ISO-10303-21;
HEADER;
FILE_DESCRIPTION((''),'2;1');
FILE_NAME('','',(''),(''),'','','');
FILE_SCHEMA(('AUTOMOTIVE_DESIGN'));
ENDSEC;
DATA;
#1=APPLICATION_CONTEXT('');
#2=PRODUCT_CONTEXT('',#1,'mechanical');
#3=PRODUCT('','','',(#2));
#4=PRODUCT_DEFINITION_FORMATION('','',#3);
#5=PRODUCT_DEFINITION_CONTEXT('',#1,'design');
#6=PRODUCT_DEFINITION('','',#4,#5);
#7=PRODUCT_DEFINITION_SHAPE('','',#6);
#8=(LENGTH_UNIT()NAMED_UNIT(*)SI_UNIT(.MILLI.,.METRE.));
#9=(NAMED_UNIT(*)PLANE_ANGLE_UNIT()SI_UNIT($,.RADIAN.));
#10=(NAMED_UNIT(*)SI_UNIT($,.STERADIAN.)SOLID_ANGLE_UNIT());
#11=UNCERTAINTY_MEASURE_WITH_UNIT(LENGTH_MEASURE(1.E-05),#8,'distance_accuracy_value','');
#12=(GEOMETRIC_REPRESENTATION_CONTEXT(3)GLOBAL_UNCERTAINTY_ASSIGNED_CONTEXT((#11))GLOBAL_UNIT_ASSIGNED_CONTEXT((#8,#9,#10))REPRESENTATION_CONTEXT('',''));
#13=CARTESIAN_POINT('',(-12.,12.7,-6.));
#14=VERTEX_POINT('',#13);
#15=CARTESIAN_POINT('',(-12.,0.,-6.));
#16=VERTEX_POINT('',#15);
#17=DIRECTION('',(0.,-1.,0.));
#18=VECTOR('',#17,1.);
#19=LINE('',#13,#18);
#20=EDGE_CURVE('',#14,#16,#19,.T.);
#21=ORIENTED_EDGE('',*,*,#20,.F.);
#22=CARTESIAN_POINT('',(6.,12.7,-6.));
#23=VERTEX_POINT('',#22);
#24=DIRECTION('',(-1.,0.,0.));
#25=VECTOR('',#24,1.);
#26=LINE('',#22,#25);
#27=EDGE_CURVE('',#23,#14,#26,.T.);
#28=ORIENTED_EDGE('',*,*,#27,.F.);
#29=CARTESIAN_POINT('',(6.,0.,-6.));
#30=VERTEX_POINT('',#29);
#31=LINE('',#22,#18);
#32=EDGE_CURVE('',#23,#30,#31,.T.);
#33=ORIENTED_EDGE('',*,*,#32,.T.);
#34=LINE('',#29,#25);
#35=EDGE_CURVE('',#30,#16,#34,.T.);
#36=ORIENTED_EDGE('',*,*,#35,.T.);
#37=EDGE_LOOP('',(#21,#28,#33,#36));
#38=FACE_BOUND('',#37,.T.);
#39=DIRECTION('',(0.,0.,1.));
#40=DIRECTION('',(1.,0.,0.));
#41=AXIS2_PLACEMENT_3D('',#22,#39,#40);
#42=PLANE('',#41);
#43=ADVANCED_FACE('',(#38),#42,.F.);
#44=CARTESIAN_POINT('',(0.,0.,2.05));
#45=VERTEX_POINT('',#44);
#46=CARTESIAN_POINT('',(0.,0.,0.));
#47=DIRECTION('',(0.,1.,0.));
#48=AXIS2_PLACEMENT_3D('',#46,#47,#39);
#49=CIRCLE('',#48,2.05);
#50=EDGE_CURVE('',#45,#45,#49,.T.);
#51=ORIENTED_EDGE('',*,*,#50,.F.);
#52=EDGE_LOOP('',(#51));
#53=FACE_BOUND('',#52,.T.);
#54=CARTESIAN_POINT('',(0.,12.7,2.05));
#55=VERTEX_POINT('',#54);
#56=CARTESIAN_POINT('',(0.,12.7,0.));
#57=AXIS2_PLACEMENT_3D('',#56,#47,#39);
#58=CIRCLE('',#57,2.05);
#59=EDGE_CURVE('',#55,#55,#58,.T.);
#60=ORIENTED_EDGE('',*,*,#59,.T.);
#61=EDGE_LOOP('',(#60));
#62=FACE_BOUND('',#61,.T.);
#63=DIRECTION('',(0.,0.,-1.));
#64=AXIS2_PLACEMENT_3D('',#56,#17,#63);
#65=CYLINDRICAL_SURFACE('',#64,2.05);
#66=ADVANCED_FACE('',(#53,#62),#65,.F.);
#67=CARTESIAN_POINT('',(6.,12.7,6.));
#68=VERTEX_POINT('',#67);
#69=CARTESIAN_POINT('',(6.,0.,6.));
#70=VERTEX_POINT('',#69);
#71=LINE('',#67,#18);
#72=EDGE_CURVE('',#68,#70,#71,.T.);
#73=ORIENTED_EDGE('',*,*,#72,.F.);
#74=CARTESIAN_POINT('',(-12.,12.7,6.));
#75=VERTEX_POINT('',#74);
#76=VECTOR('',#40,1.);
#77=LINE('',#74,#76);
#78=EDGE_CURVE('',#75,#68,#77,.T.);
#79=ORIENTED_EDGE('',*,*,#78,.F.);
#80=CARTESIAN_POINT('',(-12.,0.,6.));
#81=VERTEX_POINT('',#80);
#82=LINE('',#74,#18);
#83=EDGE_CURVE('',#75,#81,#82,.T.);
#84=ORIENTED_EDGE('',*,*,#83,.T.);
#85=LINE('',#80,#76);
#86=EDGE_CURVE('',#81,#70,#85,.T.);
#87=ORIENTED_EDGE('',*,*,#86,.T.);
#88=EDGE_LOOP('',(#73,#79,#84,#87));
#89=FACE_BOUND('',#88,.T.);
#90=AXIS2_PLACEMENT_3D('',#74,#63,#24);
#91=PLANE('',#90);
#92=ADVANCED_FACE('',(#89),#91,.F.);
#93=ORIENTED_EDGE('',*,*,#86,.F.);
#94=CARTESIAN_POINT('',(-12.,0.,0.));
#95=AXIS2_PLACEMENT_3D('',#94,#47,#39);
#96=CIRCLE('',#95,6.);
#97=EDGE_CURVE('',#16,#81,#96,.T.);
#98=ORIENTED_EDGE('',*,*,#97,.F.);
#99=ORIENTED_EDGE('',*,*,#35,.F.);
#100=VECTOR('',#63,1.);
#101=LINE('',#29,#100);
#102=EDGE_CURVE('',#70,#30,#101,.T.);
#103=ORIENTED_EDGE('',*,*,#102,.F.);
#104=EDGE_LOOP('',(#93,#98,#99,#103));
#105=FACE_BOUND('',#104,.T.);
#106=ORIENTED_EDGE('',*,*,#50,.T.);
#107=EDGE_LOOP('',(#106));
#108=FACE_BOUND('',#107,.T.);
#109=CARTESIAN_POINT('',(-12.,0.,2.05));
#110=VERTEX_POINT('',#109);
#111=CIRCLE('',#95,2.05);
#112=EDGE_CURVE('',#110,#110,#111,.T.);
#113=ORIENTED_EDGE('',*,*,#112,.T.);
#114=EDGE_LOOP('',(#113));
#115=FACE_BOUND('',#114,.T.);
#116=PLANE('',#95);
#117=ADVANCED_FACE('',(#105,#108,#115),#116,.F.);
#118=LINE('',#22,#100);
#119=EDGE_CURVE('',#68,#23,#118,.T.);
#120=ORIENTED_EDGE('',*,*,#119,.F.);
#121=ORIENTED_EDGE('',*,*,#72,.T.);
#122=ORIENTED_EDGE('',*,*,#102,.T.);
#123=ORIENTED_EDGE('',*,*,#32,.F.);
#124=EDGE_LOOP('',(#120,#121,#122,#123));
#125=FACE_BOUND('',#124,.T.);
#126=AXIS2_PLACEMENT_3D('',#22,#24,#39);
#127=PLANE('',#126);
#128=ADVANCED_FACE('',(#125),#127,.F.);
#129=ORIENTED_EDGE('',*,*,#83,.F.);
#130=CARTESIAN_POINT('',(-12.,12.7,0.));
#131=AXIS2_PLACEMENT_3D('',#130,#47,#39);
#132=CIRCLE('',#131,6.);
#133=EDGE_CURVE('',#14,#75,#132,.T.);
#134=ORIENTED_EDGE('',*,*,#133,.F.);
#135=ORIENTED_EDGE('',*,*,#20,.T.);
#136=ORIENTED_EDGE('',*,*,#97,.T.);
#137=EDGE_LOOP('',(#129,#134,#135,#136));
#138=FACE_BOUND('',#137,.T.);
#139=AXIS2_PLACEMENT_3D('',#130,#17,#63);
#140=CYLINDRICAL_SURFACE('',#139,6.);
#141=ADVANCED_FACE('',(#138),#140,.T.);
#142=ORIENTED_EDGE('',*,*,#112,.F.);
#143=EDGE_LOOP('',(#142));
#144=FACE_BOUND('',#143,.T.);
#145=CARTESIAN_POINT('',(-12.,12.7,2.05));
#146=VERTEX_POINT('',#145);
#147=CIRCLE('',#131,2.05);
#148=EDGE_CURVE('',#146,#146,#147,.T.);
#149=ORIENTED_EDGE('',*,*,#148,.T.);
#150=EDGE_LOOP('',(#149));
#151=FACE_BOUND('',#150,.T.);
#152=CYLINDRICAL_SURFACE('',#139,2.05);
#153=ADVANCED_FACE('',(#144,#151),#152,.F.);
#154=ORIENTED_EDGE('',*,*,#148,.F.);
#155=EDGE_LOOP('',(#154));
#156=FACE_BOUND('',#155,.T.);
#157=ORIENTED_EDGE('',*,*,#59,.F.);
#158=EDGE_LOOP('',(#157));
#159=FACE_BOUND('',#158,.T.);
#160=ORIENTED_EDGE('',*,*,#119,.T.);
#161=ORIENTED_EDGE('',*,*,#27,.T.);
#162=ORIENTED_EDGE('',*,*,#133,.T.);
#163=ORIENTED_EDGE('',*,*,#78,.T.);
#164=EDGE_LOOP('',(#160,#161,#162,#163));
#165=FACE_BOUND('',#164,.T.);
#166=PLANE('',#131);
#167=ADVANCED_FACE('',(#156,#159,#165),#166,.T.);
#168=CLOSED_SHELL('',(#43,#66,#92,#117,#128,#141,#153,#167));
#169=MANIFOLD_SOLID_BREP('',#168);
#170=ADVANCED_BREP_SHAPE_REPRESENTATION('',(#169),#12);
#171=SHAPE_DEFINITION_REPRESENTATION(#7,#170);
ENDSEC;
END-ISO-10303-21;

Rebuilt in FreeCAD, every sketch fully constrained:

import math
import FreeCAD as App
import Part
import Sketcher
from FreeCAD import Vector
Q = App.Units.Quantity

doc = App.newDocument("Part")
params = doc.addObject("Spreadsheet::Sheet", "Params")
for row, (alias, value) in enumerate([
    ("sketch1_radius", "6 mm"),
    ("sketch1_diameter", "4.1 mm"),
    ("sketch1_width", "18 mm"),
    ("pad1_length", "12.7 mm"),
], start=1):
    params.set(f"A{row}", alias)
    params.set(f"B{row}", "=" + value)
    params.setAlias(f"B{row}", alias)

body = doc.addObject("PartDesign::Body", "Body")

# Sketch on XZ plane
sketch1 = body.newObject("Sketcher::SketchObject", "Sketch")
sketch1.AttachmentSupport = (doc.getObject("XZ_Plane"), [""])
sketch1.MapMode = "FlatFace"
sketch1.addGeometry(Part.LineSegment(Vector(6, 6, 0), Vector(6, -6, 0)), False)
sketch1.addGeometry(Part.LineSegment(Vector(6, -6, 0), Vector(-12, -6, 0)), False)
sketch1.addGeometry(Part.ArcOfCircle(Part.Circle(Vector(-12, 0, 0), Vector(0, 0, 1), 6), math.radians(90), math.radians(270)), False)
sketch1.addGeometry(Part.LineSegment(Vector(-12, 6, 0), Vector(6, 6, 0)), False)
sketch1.addGeometry(Part.Circle(Vector(0, 0, 0), Vector(0, 0, 1), 2), False)
sketch1.addGeometry(Part.Circle(Vector(-12, 0, 0), Vector(0, 0, 1), 2), False)
sketch1.addConstraint(Sketcher.Constraint("Coincident", 0, 2, 1, 1))
sketch1.addConstraint(Sketcher.Constraint("Tangent", 1, 2, 2, 2))
sketch1.addConstraint(Sketcher.Constraint("Tangent", 2, 1, 3, 1))
sketch1.addConstraint(Sketcher.Constraint("Coincident", 3, 2, 0, 1))
sketch1.addConstraint(Sketcher.Constraint("Vertical", 0))
sketch1.addConstraint(Sketcher.Constraint("Horizontal", 1))
sketch1.addConstraint(Sketcher.Constraint("Horizontal", 3))
sketch1.addConstraint(Sketcher.Constraint("Coincident", 4, 3, -1, 1))
sketch1.addConstraint(Sketcher.Constraint("Coincident", 5, 3, 2, 3))
sketch1.addConstraint(Sketcher.Constraint("Equal", 4, 5))
sketch1.addConstraint(Sketcher.Constraint("PointOnObject", 2, 3, -1))
sketch1.addConstraint(Sketcher.Constraint("Radius", 2, Q("6 mm")))
sketch1.addConstraint(Sketcher.Constraint("Diameter", 4, Q("4.1 mm")))
sketch1.addConstraint(Sketcher.Constraint("DistanceX", 1, 2, 1, 1, Q("18 mm")))
sketch1.addConstraint(Sketcher.Constraint("DistanceX", 2, 3, -1, 1, Q("12 mm")))
sketch1.setExpression("Constraints[11]", "Params.sketch1_radius")
sketch1.setExpression("Constraints[12]", "Params.sketch1_diameter")
sketch1.setExpression("Constraints[13]", "Params.sketch1_width")
pad1 = body.newObject("PartDesign::Pad", "Pad")
pad1.Profile = sketch1
pad1.setExpression("Length", "Params.pad1_length")
pad1.Reversed = True

doc.recompute()
